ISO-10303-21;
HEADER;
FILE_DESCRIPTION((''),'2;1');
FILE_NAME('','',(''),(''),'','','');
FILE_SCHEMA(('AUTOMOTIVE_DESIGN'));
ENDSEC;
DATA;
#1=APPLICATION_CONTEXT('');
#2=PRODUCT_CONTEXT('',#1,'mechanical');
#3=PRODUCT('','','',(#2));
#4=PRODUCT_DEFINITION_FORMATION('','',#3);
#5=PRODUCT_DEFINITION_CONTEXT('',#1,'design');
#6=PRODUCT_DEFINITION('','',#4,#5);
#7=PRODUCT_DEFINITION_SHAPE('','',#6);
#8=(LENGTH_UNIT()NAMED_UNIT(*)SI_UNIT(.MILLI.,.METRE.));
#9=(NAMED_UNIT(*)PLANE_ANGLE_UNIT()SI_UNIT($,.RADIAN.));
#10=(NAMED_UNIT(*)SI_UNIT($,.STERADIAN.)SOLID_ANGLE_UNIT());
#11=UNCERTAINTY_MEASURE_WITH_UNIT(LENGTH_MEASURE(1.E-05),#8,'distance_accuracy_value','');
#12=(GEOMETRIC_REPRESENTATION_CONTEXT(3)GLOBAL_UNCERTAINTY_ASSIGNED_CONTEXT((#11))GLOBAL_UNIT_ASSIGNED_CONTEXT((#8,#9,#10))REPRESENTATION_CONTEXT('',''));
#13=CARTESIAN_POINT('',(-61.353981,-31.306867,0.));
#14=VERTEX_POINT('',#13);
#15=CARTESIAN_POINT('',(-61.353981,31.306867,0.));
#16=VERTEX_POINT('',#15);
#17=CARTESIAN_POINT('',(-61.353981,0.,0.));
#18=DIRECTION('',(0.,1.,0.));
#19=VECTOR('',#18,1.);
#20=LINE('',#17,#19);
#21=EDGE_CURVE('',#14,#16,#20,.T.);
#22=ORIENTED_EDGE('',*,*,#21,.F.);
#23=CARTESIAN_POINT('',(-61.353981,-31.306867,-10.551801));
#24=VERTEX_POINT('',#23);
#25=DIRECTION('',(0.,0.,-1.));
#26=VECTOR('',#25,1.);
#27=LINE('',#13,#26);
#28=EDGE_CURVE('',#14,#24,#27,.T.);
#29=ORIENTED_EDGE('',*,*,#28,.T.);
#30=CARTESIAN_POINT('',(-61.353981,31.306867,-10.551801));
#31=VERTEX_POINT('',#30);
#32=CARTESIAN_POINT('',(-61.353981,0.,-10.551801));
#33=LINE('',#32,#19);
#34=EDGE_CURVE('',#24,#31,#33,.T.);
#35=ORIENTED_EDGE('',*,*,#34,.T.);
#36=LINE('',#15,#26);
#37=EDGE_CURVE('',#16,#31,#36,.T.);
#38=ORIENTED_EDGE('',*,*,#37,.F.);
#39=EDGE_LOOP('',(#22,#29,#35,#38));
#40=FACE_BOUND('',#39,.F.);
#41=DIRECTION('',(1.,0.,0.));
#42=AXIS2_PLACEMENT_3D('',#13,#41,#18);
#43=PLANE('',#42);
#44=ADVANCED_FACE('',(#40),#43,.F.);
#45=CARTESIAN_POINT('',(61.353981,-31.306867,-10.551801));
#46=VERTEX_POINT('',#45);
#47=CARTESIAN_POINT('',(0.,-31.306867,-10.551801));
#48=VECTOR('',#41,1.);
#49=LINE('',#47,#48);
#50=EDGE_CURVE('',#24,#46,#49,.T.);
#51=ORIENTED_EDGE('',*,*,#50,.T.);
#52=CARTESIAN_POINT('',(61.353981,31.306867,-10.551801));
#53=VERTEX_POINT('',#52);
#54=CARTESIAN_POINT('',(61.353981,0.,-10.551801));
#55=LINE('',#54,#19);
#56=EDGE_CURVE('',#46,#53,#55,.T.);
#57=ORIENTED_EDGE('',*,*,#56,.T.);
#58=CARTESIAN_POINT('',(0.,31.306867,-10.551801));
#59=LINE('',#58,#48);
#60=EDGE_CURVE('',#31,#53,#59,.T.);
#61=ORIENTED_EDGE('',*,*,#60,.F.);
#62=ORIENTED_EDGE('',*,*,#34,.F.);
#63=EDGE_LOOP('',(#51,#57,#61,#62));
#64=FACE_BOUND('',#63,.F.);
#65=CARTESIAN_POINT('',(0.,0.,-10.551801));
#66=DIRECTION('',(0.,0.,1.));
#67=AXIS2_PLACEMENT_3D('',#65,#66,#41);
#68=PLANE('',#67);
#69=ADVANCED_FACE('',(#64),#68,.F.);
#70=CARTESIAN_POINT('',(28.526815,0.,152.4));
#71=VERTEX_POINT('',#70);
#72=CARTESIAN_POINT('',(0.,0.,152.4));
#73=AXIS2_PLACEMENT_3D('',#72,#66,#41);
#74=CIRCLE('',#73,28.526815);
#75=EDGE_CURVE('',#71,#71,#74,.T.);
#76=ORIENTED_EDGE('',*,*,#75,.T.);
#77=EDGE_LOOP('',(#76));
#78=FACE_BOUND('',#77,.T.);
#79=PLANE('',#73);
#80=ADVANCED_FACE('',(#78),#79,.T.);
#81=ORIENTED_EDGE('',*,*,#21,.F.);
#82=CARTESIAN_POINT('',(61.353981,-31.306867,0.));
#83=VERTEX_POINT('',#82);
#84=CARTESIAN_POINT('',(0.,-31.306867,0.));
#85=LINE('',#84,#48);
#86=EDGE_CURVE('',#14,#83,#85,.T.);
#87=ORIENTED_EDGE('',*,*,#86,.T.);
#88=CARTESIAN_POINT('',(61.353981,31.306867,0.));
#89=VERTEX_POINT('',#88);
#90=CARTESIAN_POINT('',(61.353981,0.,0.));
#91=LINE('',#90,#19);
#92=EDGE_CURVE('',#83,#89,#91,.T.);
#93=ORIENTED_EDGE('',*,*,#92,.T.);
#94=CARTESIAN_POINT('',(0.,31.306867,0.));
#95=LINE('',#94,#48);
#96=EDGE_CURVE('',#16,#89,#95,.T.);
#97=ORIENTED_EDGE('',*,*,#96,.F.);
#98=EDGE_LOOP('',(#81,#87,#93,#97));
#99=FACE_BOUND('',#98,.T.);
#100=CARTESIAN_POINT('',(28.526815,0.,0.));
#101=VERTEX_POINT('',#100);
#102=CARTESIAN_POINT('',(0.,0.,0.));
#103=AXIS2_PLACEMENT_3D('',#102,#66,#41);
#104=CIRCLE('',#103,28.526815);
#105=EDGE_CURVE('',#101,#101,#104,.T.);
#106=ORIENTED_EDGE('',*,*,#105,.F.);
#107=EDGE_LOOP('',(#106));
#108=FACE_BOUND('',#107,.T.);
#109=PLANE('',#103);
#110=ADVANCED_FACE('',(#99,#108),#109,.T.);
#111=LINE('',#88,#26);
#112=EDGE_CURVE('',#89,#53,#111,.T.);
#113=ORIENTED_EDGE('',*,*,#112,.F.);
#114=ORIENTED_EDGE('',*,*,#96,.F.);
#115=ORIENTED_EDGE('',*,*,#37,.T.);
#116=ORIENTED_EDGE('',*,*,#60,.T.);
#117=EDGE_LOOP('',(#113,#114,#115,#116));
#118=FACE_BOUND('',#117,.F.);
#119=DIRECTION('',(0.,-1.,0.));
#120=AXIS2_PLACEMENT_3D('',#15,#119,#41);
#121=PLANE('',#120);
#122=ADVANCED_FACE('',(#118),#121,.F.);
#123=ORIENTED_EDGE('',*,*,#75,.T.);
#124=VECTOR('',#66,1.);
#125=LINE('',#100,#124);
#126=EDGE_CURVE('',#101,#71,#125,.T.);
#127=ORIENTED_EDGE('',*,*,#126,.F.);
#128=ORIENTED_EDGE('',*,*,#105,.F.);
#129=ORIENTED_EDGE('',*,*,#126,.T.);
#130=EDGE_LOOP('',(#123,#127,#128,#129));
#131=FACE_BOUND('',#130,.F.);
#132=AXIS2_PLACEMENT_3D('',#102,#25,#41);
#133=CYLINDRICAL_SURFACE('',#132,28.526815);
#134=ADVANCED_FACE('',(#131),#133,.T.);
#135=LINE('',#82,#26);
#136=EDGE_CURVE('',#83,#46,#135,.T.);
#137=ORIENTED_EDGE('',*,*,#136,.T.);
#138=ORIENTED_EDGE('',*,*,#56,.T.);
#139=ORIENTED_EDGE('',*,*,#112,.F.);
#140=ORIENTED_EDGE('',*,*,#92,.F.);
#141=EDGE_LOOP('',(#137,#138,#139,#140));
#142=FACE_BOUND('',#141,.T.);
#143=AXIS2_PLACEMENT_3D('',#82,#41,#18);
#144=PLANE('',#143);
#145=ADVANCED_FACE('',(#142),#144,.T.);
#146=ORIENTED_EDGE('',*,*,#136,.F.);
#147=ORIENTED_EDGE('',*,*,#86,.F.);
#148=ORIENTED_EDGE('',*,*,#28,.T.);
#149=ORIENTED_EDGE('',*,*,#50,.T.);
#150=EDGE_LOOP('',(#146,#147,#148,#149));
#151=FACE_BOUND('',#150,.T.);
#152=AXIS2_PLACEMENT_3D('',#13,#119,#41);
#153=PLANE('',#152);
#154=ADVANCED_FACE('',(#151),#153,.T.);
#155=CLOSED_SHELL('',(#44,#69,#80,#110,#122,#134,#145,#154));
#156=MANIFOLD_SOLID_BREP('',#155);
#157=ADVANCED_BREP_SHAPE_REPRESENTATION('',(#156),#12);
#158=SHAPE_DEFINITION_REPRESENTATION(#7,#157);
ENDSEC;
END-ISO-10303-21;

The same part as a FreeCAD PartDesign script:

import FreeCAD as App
import Part
import Sketcher
Q = App.Units.Quantity


def add_polygon(sketch, points):
    """Adds a closed chain of lines whose ends are joined by coincident constraints."""
    first, n = sketch.GeometryCount, len(points)
    for a, b in zip(points, points[1:] + points[:1]):
        sketch.addGeometry(Part.LineSegment(App.Vector(*a, 0), App.Vector(*b, 0)), False)
    for i in range(n):
        sketch.addConstraint(Sketcher.Constraint("Coincident", first + i, 2, first + (i + 1) % n, 1))

doc = App.newDocument("Part")
body = doc.addObject("PartDesign::Body", "Body")

# Sketch on XY plane
sketch1 = body.newObject("Sketcher::SketchObject", "Sketch")
sketch1.AttachmentSupport = (doc.getObject("XY_Plane"), [""])
sketch1.MapMode = "FlatFace"
sketch1.addGeometry(Part.Circle(App.Vector(0, 0, 0), App.Vector(0, 0, 1), 28.526815), False)
sketch1.addConstraint([
    Sketcher.Constraint("Coincident", 0, 3, -1, 1),
    Sketcher.Constraint("Diameter", 0, Q("57.05363 mm")),
])
pad1 = body.newObject("PartDesign::Pad", "Pad")
pad1.Profile = sketch1
pad1.Length = Q("6 in")

# Sketch on XY plane
sketch2 = body.newObject("Sketcher::SketchObject", "Sketch001")
sketch2.AttachmentSupport = (doc.getObject("XY_Plane"), [""])
sketch2.MapMode = "FlatFace"
add_polygon(sketch2, [(-61.353981, 31.306867), (-61.353981, -31.306867), (61.353981, -31.306867), (61.353981, 31.306867)])  # lines 0-3
sketch2.addConstraint([
    Sketcher.Constraint("Vertical", 0),
    Sketcher.Constraint("Horizontal", 1),
    Sketcher.Constraint("Vertical", 2),
    Sketcher.Constraint("Horizontal", 3),
    Sketcher.Constraint("Symmetric", 0, 2, 2, 2, -1, 1),
    Sketcher.Constraint("DistanceX", 1, 1, 1, 2, Q("122.707962 mm")),
    Sketcher.Constraint("DistanceY", 0, 2, 0, 1, Q("62.613734 mm")),
])
pad2 = body.newObject("PartDesign::Pad", "Pad001")
pad2.Profile = sketch2
pad2.Length = 10.551801
pad2.Reversed = True

doc.recompute()
